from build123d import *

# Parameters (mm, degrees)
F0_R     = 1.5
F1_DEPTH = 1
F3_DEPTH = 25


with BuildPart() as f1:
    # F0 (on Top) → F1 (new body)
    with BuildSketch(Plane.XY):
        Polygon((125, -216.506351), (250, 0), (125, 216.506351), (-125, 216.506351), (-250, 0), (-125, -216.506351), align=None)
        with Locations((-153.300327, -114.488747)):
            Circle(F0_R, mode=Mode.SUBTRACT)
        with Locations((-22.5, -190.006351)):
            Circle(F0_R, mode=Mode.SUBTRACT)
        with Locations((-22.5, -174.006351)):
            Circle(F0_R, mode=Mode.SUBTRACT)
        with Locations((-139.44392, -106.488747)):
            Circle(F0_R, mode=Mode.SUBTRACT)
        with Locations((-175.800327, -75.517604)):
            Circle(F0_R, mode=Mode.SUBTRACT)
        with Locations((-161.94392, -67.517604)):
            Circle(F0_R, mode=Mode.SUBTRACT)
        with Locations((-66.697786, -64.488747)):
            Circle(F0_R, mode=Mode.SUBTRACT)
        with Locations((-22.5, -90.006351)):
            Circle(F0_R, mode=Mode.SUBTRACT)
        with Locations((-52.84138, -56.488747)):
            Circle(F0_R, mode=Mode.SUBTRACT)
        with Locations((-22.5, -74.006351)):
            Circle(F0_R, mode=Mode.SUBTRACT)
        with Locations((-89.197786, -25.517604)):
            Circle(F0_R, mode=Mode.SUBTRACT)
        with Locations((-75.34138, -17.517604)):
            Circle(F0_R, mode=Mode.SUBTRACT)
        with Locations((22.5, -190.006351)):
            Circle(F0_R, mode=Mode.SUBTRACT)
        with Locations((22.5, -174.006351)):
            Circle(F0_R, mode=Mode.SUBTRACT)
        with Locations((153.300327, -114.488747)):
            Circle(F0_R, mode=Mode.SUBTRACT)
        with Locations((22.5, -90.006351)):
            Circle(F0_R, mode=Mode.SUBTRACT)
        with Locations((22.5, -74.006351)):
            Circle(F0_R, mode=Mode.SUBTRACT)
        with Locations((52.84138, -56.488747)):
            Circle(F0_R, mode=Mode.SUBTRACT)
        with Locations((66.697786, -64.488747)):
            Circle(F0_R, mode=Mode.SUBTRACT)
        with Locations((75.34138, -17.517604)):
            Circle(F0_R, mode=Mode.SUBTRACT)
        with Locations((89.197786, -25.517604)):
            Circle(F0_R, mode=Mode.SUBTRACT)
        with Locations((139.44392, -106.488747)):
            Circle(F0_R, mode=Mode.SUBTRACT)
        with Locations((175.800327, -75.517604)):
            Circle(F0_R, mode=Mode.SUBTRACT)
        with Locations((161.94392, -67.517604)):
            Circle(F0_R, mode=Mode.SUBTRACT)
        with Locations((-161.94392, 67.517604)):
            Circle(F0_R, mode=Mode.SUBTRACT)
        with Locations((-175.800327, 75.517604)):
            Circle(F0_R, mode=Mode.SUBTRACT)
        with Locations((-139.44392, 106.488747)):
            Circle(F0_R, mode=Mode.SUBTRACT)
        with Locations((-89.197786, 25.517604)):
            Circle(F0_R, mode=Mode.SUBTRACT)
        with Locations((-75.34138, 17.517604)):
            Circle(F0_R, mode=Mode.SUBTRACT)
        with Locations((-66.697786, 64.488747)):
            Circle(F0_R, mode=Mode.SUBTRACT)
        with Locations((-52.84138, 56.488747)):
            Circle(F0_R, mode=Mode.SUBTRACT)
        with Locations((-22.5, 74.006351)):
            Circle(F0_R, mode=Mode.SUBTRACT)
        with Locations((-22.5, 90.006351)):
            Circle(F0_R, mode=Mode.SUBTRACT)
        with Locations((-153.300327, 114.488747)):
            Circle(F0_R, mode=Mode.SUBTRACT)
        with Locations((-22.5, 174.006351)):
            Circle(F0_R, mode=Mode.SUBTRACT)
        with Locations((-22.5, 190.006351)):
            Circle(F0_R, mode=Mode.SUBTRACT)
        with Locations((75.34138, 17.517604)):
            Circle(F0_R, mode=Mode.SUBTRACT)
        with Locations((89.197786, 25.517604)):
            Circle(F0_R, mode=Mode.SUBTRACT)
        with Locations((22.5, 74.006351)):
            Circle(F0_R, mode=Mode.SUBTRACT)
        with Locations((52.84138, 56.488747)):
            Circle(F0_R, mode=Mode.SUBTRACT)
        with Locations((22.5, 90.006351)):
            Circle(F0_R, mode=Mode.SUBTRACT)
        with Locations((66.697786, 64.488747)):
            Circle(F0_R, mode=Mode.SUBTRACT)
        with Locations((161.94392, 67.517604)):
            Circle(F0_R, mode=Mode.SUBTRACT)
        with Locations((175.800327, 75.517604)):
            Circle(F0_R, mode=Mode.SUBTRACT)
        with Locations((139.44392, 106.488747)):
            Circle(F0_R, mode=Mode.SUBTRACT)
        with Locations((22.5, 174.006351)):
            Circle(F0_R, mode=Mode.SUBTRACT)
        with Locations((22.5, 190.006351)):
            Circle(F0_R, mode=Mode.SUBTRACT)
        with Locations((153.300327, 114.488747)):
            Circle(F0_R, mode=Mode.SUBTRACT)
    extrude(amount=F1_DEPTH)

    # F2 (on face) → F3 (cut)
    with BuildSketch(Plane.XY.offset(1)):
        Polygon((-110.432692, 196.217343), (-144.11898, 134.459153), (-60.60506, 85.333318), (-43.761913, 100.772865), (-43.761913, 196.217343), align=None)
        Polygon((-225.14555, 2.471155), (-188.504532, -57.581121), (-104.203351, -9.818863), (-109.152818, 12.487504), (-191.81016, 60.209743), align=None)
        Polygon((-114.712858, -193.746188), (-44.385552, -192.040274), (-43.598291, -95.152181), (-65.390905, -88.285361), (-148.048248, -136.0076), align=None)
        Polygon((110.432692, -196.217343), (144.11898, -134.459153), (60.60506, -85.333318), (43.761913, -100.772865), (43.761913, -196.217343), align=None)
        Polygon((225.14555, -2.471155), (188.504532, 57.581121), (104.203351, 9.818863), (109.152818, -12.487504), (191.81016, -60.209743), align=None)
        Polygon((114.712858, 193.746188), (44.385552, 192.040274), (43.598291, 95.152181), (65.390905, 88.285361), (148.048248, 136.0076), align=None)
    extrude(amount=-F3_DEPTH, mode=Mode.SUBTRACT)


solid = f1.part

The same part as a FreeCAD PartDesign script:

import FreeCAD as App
import Part
import Sketcher
Q = App.Units.Quantity

doc = App.newDocument("Part")
body = doc.addObject("PartDesign::Body", "Body")

# Sketch on XY plane
sketch1 = body.newObject("Sketcher::SketchObject", "Sketch")
sketch1.AttachmentSupport = (doc.getObject("XY_Plane"), [""])
sketch1.MapMode = "FlatFace"
sketch1.addGeometry([
    Part.LineSegment(App.Vector(125, -216.5, 0), App.Vector(250, 0, 0)),  # 0
    Part.LineSegment(App.Vector(250, 0, 0), App.Vector(125, 216.5, 0)),  # 1
    Part.LineSegment(App.Vector(125, 216.5, 0), App.Vector(-125, 216.5, 0)),  # 2
    Part.LineSegment(App.Vector(-125, 216.5, 0), App.Vector(-250, 0, 0)),  # 3
    Part.LineSegment(App.Vector(-250, 0, 0), App.Vector(-125, -216.5, 0)),  # 4
    Part.LineSegment(App.Vector(-125, -216.5, 0), App.Vector(125, -216.5, 0)),  # 5
    Part.Circle(App.Vector(-153.3, -114.5, 0), App.Vector(0, 0, 1), 1.5),  # 6
    Part.Circle(App.Vector(-139.4, -106.5, 0), App.Vector(0, 0, 1), 1.5),  # 7
    Part.Circle(App.Vector(-22.5, -190, 0), App.Vector(0, 0, 1), 1.5),  # 8
    Part.Circle(App.Vector(-22.5, -174, 0), App.Vector(0, 0, 1), 1.5),  # 9
    Part.Circle(App.Vector(-175.8, -75.5, 0), App.Vector(0, 0, 1), 1.5),  # 10
    Part.Circle(App.Vector(-161.9, -67.5, 0), App.Vector(0, 0, 1), 1.5),  # 11
    Part.Circle(App.Vector(-89.2, -25.5, 0), App.Vector(0, 0, 1), 1.5),  # 12
    Part.Circle(App.Vector(-66.7, -64.5, 0), App.Vector(0, 0, 1), 1.5),  # 13
    Part.Circle(App.Vector(-52.8, -56.5, 0), App.Vector(0, 0, 1), 1.5),  # 14
    Part.Circle(App.Vector(-22.5, -90, 0), App.Vector(0, 0, 1), 1.5),  # 15
    Part.Circle(App.Vector(-22.5, -74, 0), App.Vector(0, 0, 1), 1.5),  # 16
    Part.Circle(App.Vector(-75.3, -17.5, 0), App.Vector(0, 0, 1), 1.5),  # 17
    Part.Circle(App.Vector(22.5, -190, 0), App.Vector(0, 0, 1), 1.5),  # 18
    Part.Circle(App.Vector(22.5, -174, 0), App.Vector(0, 0, 1), 1.5),  # 19
    Part.Circle(App.Vector(153.3, -114.5, 0), App.Vector(0, 0, 1), 1.5),  # 20
    Part.Circle(App.Vector(139.4, -106.5, 0), App.Vector(0, 0, 1), 1.5),  # 21
    Part.Circle(App.Vector(22.5, -90, 0), App.Vector(0, 0, 1), 1.5),  # 22
    Part.Circle(App.Vector(22.5, -74, 0), App.Vector(0, 0, 1), 1.5),  # 23
    Part.Circle(App.Vector(52.8, -56.5, 0), App.Vector(0, 0, 1), 1.5),  # 24
    Part.Circle(App.Vector(66.7, -64.5, 0), App.Vector(0, 0, 1), 1.5),  # 25
    Part.Circle(App.Vector(75.3, -17.5, 0), App.Vector(0, 0, 1), 1.5),  # 26
    Part.Circle(App.Vector(175.8, -75.5, 0), App.Vector(0, 0, 1), 1.5),  # 27
    Part.Circle(App.Vector(161.9, -67.5, 0), App.Vector(0, 0, 1), 1.5),  # 28
    Part.Circle(App.Vector(89.2, -25.5, 0), App.Vector(0, 0, 1), 1.5),  # 29
    Part.Circle(App.Vector(-89.2, 25.5, 0), App.Vector(0, 0, 1), 1.5),  # 30
    Part.Circle(App.Vector(-161.9, 67.5, 0), App.Vector(0, 0, 1), 1.5),  # 31
    Part.Circle(App.Vector(-175.8, 75.5, 0), App.Vector(0, 0, 1), 1.5),  # 32
    Part.Circle(App.Vector(-75.3, 17.5, 0), App.Vector(0, 0, 1), 1.5),  # 33
    Part.Circle(App.Vector(-66.7, 64.5, 0), App.Vector(0, 0, 1), 1.5),  # 34
    Part.Circle(App.Vector(-52.8, 56.5, 0), App.Vector(0, 0, 1), 1.5),  # 35
    Part.Circle(App.Vector(-22.5, 74, 0), App.Vector(0, 0, 1), 1.5),  # 36
    Part.Circle(App.Vector(-22.5, 90, 0), App.Vector(0, 0, 1), 1.5),  # 37
    Part.Circle(App.Vector(-139.4, 106.5, 0), App.Vector(0, 0, 1), 1.5),  # 38
    Part.Circle(App.Vector(-153.3, 114.5, 0), App.Vector(0, 0, 1), 1.5),  # 39
    Part.Circle(App.Vector(-22.5, 174, 0), App.Vector(0, 0, 1), 1.5),  # 40
    Part.Circle(App.Vector(-22.5, 190, 0), App.Vector(0, 0, 1), 1.5),  # 41
    Part.Circle(App.Vector(75.3, 17.5, 0), App.Vector(0, 0, 1), 1.5),  # 42
    Part.Circle(App.Vector(22.5, 74, 0), App.Vector(0, 0, 1), 1.5),  # 43
    Part.Circle(App.Vector(22.5, 90, 0), App.Vector(0, 0, 1), 1.5),  # 44
    Part.Circle(App.Vector(52.8, 56.5, 0), App.Vector(0, 0, 1), 1.5),  # 45
    Part.Circle(App.Vector(66.7, 64.5, 0), App.Vector(0, 0, 1), 1.5),  # 46
    Part.Circle(App.Vector(89.2, 25.5, 0), App.Vector(0, 0, 1), 1.5),  # 47
    Part.Circle(App.Vector(161.9, 67.5, 0), App.Vector(0, 0, 1), 1.5),  # 48
    Part.Circle(App.Vector(175.8, 75.5, 0), App.Vector(0, 0, 1), 1.5),  # 49
    Part.Circle(App.Vector(22.5, 174, 0), App.Vector(0, 0, 1), 1.5),  # 50
    Part.Circle(App.Vector(22.5, 190, 0), App.Vector(0, 0, 1), 1.5),  # 51
    Part.Circle(App.Vector(139.4, 106.5, 0), App.Vector(0, 0, 1), 1.5),  # 52
    Part.Circle(App.Vector(153.3, 114.5, 0), App.Vector(0, 0, 1), 1.5),  # 53
], False)
sketch1.addConstraint([
    Sketcher.Constraint("Coincident", 0, 2, 1, 1),
    Sketcher.Constraint("Coincident", 1, 2, 2, 1),
    Sketcher.Constraint("Coincident", 2, 2, 3, 1),
    Sketcher.Constraint("Coincident", 3, 2, 4, 1),
    Sketcher.Constraint("Coincident", 4, 2, 5, 1),
    Sketcher.Constraint("Coincident", 5, 2, 0, 1),
    Sketcher.Constraint("Horizontal", 2),
    Sketcher.Constraint("Horizontal", 5),
    Sketcher.Constraint("Equal", 6, 7),
    Sketcher.Constraint("Equal", 7, 8),
    Sketcher.Constraint("Equal", 8, 9),
    Sketcher.Constraint("Equal", 9, 10),
    Sketcher.Constraint("Equal", 10, 11),
    Sketcher.Constraint("Equal", 11, 12),
    Sketcher.Constraint("Equal", 12, 13),
    Sketcher.Constraint("Equal", 13, 14),
    Sketcher.Constraint("Equal", 14, 15),
    Sketcher.Constraint("Equal", 15, 16),
    Sketcher.Constraint("Equal", 16, 17),
    Sketcher.Constraint("Equal", 17, 18),
    Sketcher.Constraint("Equal", 18, 19),
    Sketcher.Constraint("Equal", 19, 20),
    Sketcher.Constraint("Equal", 20, 21),
    Sketcher.Constraint("Equal", 21, 22),
    Sketcher.Constraint("Equal", 22, 23),
    Sketcher.Constraint("Equal", 23, 24),
    Sketcher.Constraint("Equal", 24, 25),
    Sketcher.Constraint("Equal", 25, 26),
    Sketcher.Constraint("Equal", 26, 27),
    Sketcher.Constraint("Equal", 27, 28),
    Sketcher.Constraint("Equal", 28, 29),
    Sketcher.Constraint("Equal", 29, 30),
    Sketcher.Constraint("Equal", 30, 31),
    Sketcher.Constraint("Equal", 31, 32),
    Sketcher.Constraint("Equal", 32, 33),
    Sketcher.Constraint("Equal", 33, 34),
    Sketcher.Constraint("Equal", 34, 35),
    Sketcher.Constraint("Equal", 35, 36),
    Sketcher.Constraint("Equal", 36, 37),
    Sketcher.Constraint("Equal", 37, 38),
    Sketcher.Constraint("Equal", 38, 39),
    Sketcher.Constraint("Equal", 39, 40),
    Sketcher.Constraint("Equal", 40, 41),
    Sketcher.Constraint("Equal", 41, 42),
    Sketcher.Constraint("Equal", 42, 43),
    Sketcher.Constraint("Equal", 43, 44),
    Sketcher.Constraint("Equal", 44, 45),
    Sketcher.Constraint("Equal", 45, 46),
    Sketcher.Constraint("Equal", 46, 47),
    Sketcher.Constraint("Equal", 47, 48),
    Sketcher.Constraint("Equal", 48, 49),
    Sketcher.Constraint("Equal", 49, 50),
    Sketcher.Constraint("Equal", 50, 51),
    Sketcher.Constraint("Equal", 51, 52),
    Sketcher.Constraint("Equal", 52, 53),
    Sketcher.Constraint("Symmetric", 29, 3, 30, 3, -1, 1),
    Sketcher.Constraint("Symmetric", 28, 3, 31, 3, -1, 1),
    Sketcher.Constraint("Symmetric", 27, 3, 32, 3, -1, 1),
    Sketcher.Constraint("Symmetric", 26, 3, 33, 3, -1, 1),
    Sketcher.Constraint("Symmetric", 25, 3, 34, 3, -1, 1),
    Sketcher.Constraint("Symmetric", 24, 3, 35, 3, -1, 1),
    Sketcher.Constraint("Symmetric", 23, 3, 36, 3, -1, 1),
    Sketcher.Constraint("Symmetric", 22, 3, 37, 3, -1, 1),
    Sketcher.Constraint("Symmetric", 21, 3, 38, 3, -1, 1),
    Sketcher.Constraint("Symmetric", 20, 3, 39, 3, -1, 1),
    Sketcher.Constraint("Symmetric", 19, 3, 40, 3, -1, 1),
    Sketcher.Constraint("Symmetric", 18, 3, 41, 3, -1, 1),
    Sketcher.Constraint("Symmetric", 17, 3, 42, 3, -1, 1),
    Sketcher.Constraint("Symmetric", 16, 3, 43, 3, -1, 1),
    Sketcher.Constraint("Symmetric", 15, 3, 44, 3, -1, 1),
    Sketcher.Constraint("Symmetric", 14, 3, 45, 3, -1, 1),
    Sketcher.Constraint("Symmetric", 13, 3, 46, 3, -1, 1),
    Sketcher.Constraint("Symmetric", 12, 3, 47, 3, -1, 1),
    Sketcher.Constraint("Symmetric", 11, 3, 48, 3, -1, 1),
    Sketcher.Constraint("Symmetric", 10, 3, 49, 3, -1, 1),
    Sketcher.Constraint("Symmetric", 9, 3, 50, 3, -1, 1),
    Sketcher.Constraint("Symmetric", 8, 3, 51, 3, -1, 1),
    Sketcher.Constraint("Symmetric", 7, 3, 52, 3, -1, 1),
    Sketcher.Constraint("Symmetric", 6, 3, 53, 3, -1, 1),
    Sketcher.Constraint("Symmetric", 0, 2, 3, 2, -1, 1),
    Sketcher.Constraint("Symmetric", 1, 2, 4, 2, -1, 1),
    Sketcher.Constraint("Symmetric", 8, 3, 18, 3, -2),
    Sketcher.Constraint("Symmetric", 9, 3, 19, 3, -2),
    Sketcher.Constraint("Symmetric", 6, 3, 20, 3, -2),
    Sketcher.Constraint("Symmetric", 7, 3, 21, 3, -2),
    Sketcher.Constraint("Symmetric", 15, 3, 22, 3, -2),
    Sketcher.Constraint("Symmetric", 16, 3, 23, 3, -2),
    Sketcher.Constraint("Symmetric", 14, 3, 24, 3, -2),
    Sketcher.Constraint("Symmetric", 13, 3, 25, 3, -2),
    Sketcher.Constraint("Symmetric", 17, 3, 26, 3, -2),
    Sketcher.Constraint("Symmetric", 10, 3, 27, 3, -2),
    Sketcher.Constraint("Symmetric", 11, 3, 28, 3, -2),
    Sketcher.Constraint("Symmetric", 12, 3, 29, 3, -2),
    Sketcher.Constraint("PointOnObject", 0, 2, -1),
    Sketcher.Constraint("Parallel", 0, 3),
    Sketcher.Constraint("Vertical", 8, 3, 9, 3),
    Sketcher.Constraint("Vertical", 9, 3, 15, 3),
    Sketcher.Constraint("Vertical", 15, 3, 16, 3),
    Sketcher.Constraint("Vertical", 2, 2, 4, 2),
    Sketcher.Constraint("Diameter", 6, 3.0),
    Sketcher.Constraint("DistanceX", 2, 2, 2, 1, 250.0),
    Sketcher.Constraint("Angle", 0, Q("60 deg")),
    Sketcher.Constraint("Distance", 0, 250.0),
    Sketcher.Constraint("DistanceY", 6, 3, 7, 3, 8.0),
    Sketcher.Constraint("DistanceY", 8, 3, 9, 3, 16.0),
    Sketcher.Constraint("DistanceY", 10, 3, 11, 3, 8.0),
    Sketcher.Constraint("DistanceY", 11, 3, 12, 3, 42.0),
    Sketcher.Constraint("DistanceY", 7, 3, 13, 3, 42.0),
    Sketcher.Constraint("DistanceY", 13, 3, 14, 3, 8.0),
    Sketcher.Constraint("DistanceY", 9, 3, 15, 3, 84.0),
    Sketcher.Constraint("DistanceY", 15, 3, 16, 3, 16.0),
    Sketcher.Constraint("DistanceY", 12, 3, 17, 3, 8.0),
    Sketcher.Constraint("DistanceX", 8, 3, 18, 3, 45.0),
    Sketcher.Constraint("DistanceX", 10, 3, 6, 3, 22.5),
    Sketcher.Constraint("DistanceX", 11, 3, 7, 3, 22.5),
    Sketcher.Constraint("DistanceX", 12, 3, 13, 3, 22.5),
    Sketcher.Constraint("DistanceX", 17, 3, 14, 3, 22.5),
    Sketcher.Constraint("DistanceY", 51, 3, 1, 2, 26.5),
    Sketcher.Constraint("DistanceX", 7, 3, -1, 1, 139.44392),
    Sketcher.Constraint("DistanceX", 14, 3, -1, 1, 52.84138),
    Sketcher.Constraint("DistanceX", 10, 3, 12, 3, 86.602541),
    Sketcher.Constraint("DistanceY", 14, 3, 30, 3, 82.006351),
    Sketcher.Constraint("DistanceY", 11, 3, 30, 3, 93.035208),
    Sketcher.Constraint("DistanceX", 6, 3, -1, 1, 153.300327),
])
pad1 = body.newObject("PartDesign::Pad", "Pad")
pad1.Profile = sketch1
pad1.Length = 1

# Sketch on XY plane
sketch2 = body.newObject("Sketcher::SketchObject", "Sketch001")
sketch2.AttachmentSupport = (doc.getObject("XY_Plane"), [""])
sketch2.MapMode = "FlatFace"
sketch2.AttachmentOffset = App.Placement(App.Vector(0, 0, 1), App.Rotation())
sketch2.addGeometry([
    Part.LineSegment(App.Vector(-110, 196, 0), App.Vector(-144, 134, 0)),  # 0
    Part.LineSegment(App.Vector(-144, 134, 0), App.Vector(-61, 85, 0)),  # 1
    Part.LineSegment(App.Vector(-61, 85, 0), App.Vector(-44, 101, 0)),  # 2
    Part.LineSegment(App.Vector(-44, 101, 0), App.Vector(-44, 196, 0)),  # 3
    Part.LineSegment(App.Vector(-44, 196, 0), App.Vector(-110, 196, 0)),  # 4
    Part.LineSegment(App.Vector(-225, 2, 0), App.Vector(-189, -58, 0)),  # 5
    Part.LineSegment(App.Vector(-189, -58, 0), App.Vector(-104, -10, 0)),  # 6
    Part.LineSegment(App.Vector(-104, -10, 0), App.Vector(-109, 12, 0)),  # 7
    Part.LineSegment(App.Vector(-109, 12, 0), App.Vector(-192, 60, 0)),  # 8
    Part.LineSegment(App.Vector(-192, 60, 0), App.Vector(-225, 2, 0)),  # 9
    Part.LineSegment(App.Vector(-115, -194, 0), App.Vector(-44, -192, 0)),  # 10
    Part.LineSegment(App.Vector(-44, -192, 0), App.Vector(-44, -95, 0)),  # 11
    Part.LineSegment(App.Vector(-44, -95, 0), App.Vector(-65, -88, 0)),  # 12
    Part.LineSegment(App.Vector(-65, -88, 0), App.Vector(-148, -136, 0)),  # 13
    Part.LineSegment(App.Vector(-148, -136, 0), App.Vector(-115, -194, 0)),  # 14
    Part.LineSegment(App.Vector(110, -196, 0), App.Vector(144, -134, 0)),  # 15
    Part.LineSegment(App.Vector(144, -134, 0), App.Vector(61, -85, 0)),  # 16
    Part.LineSegment(App.Vector(61, -85, 0), App.Vector(44, -101, 0)),  # 17
    Part.LineSegment(App.Vector(44, -101, 0), App.Vector(44, -196, 0)),  # 18
    Part.LineSegment(App.Vector(44, -196, 0), App.Vector(110, -196, 0)),  # 19
    Part.LineSegment(App.Vector(225, -2, 0), App.Vector(189, 58, 0)),  # 20
    Part.LineSegment(App.Vector(189, 58, 0), App.Vector(104, 10, 0)),  # 21
    Part.LineSegment(App.Vector(104, 10, 0), App.Vector(109, -12, 0)),  # 22
    Part.LineSegment(App.Vector(109, -12, 0), App.Vector(192, -60, 0)),  # 23
    Part.LineSegment(App.Vector(192, -60, 0), App.Vector(225, -2, 0)),  # 24
    Part.LineSegment(App.Vector(115, 194, 0), App.Vector(44, 192, 0)),  # 25
    Part.LineSegment(App.Vector(44, 192, 0), App.Vector(44, 95, 0)),  # 26
    Part.LineSegment(App.Vector(44, 95, 0), App.Vector(65, 88, 0)),  # 27
    Part.LineSegment(App.Vector(65, 88, 0), App.Vector(148, 136, 0)),  # 28
    Part.LineSegment(App.Vector(148, 136, 0), App.Vector(115, 194, 0)),  # 29
], False)
sketch2.addConstraint([
    Sketcher.Constraint("Coincident", 0, 2, 1, 1),
    Sketcher.Constraint("Coincident", 1, 2, 2, 1),
    Sketcher.Constraint("Coincident", 2, 2, 3, 1),
    Sketcher.Constraint("Coincident", 3, 2, 4, 1),
    Sketcher.Constraint("Coincident", 4, 2, 0, 1),
    Sketcher.Constraint("Coincident", 5, 2, 6, 1),
    Sketcher.Constraint("Coincident", 6, 2, 7, 1),
    Sketcher.Constraint("Coincident", 7, 2, 8, 1),
    Sketcher.Constraint("Coincident", 8, 2, 9, 1),
    Sketcher.Constraint("Coincident", 9, 2, 5, 1),
    Sketcher.Constraint("Coincident", 10, 2, 11, 1),
    Sketcher.Constraint("Coincident", 11, 2, 12, 1),
    Sketcher.Constraint("Coincident", 12, 2, 13, 1),
    Sketcher.Constraint("Coincident", 13, 2, 14, 1),
    Sketcher.Constraint("Coincident", 14, 2, 10, 1),
    Sketcher.Constraint("Coincident", 15, 2, 16, 1),
    Sketcher.Constraint("Coincident", 16, 2, 17, 1),
    Sketcher.Constraint("Coincident", 17, 2, 18, 1),
    Sketcher.Constraint("Coincident", 18, 2, 19, 1),
    Sketcher.Constraint("Coincident", 19, 2, 15, 1),
    Sketcher.Constraint("Coincident", 20, 2, 21, 1),
    Sketcher.Constraint("Coincident", 21, 2, 22, 1),
    Sketcher.Constraint("Coincident", 22, 2, 23, 1),
    Sketcher.Constraint("Coincident", 23, 2, 24, 1),
    Sketcher.Constraint("Coincident", 24, 2, 20, 1),
    Sketcher.Constraint("Coincident", 25, 2, 26, 1),
    Sketcher.Constraint("Coincident", 26, 2, 27, 1),
    Sketcher.Constraint("Coincident", 27, 2, 28, 1),
    Sketcher.Constraint("Coincident", 28, 2, 29, 1),
    Sketcher.Constraint("Coincident", 29, 2, 25, 1),
    Sketcher.Constraint("Vertical", 3),
    Sketcher.Constraint("Horizontal", 4),
    Sketcher.Constraint("Vertical", 18),
    Sketcher.Constraint("Horizontal", 19),
    Sketcher.Constraint("Symmetric", 0, 2, 15, 2, -1, 1),
    Sketcher.Constraint("Symmetric", 1, 2, 16, 2, -1, 1),
    Sketcher.Constraint("Symmetric", 2, 2, 17, 2, -1, 1),
    Sketcher.Constraint("Symmetric", 4, 2, 19, 2, -1, 1),
    Sketcher.Constraint("Symmetric", 5, 2, 20, 2, -1, 1),
    Sketcher.Constraint("Symmetric", 6, 2, 21, 2, -1, 1),
    Sketcher.Constraint("Symmetric", 7, 2, 22, 2, -1, 1),
    Sketcher.Constraint("Symmetric", 8, 2, 23, 2, -1, 1),
    Sketcher.Constraint("Symmetric", 9, 2, 24, 2, -1, 1),
    Sketcher.Constraint("Symmetric", 10, 2, 25, 2, -1, 1),
    Sketcher.Constraint("Symmetric", 11, 2, 26, 2, -1, 1),
    Sketcher.Constraint("Symmetric", 12, 2, 27, 2, -1, 1),
    Sketcher.Constraint("Symmetric", 13, 2, 28, 2, -1, 1),
    Sketcher.Constraint("Symmetric", 14, 2, 29, 2, -1, 1),
    Sketcher.Constraint("Perpendicular", 8, 9),
    Sketcher.Constraint("Perpendicular", 13, 14),
    Sketcher.Constraint("Equal", 0, 5),
    Sketcher.Constraint("Equal", 1, 6),
    Sketcher.Constraint("Equal", 2, 7),
    Sketcher.Constraint("Equal", 5, 10),
    Sketcher.Constraint("Equal", 6, 11),
    Sketcher.Constraint("Equal", 7, 12),
    Sketcher.Constraint("Equal", 8, 13),
    Sketcher.Constraint("Equal", 9, 14),
    Sketcher.Constraint("Angle", 8, Q("150 deg")),
    Sketcher.Constraint("Angle", 13, Q("-150 deg")),
    Sketcher.Constraint("DistanceX", 9, 2, 10, 2, 180.759998),
    Sketcher.Constraint("DistanceX", 4, 2, 4, 1, 66.670779),
    Sketcher.Constraint("DistanceY", 3, 1, 3, 2, 95.444478),
    Sketcher.Constraint("DistanceY", 13, 2, -1, 1, 136.0076),
    Sketcher.Constraint("DistanceX", 8, 2, 1, 2, 131.2051),
    Sketcher.Constraint("DistanceX", 9, 2, 6, 2, 120.942199),
    Sketcher.Constraint("DistanceY", 11, 2, 1, 2, 180.485499),
    Sketcher.Constraint("DistanceY", 12, 2, 6, 2, 78.466498),
    Sketcher.Constraint("Distance", 6, 96.891292),
    Sketcher.Constraint("Distance", 7, 22.848878),
    Sketcher.Constraint("Distance", 9, 66.670779),
    Sketcher.Constraint("Distance", 13, 95.444478),
    Sketcher.Constraint("DistanceX", 0, 2, -1, 1, 144.11898),
    Sketcher.Constraint("DistanceX", 1, 2, -1, 1, 60.60506),
    Sketcher.Constraint("DistanceY", -1, 1, 1, 2, 85.333318),
    Sketcher.Constraint("DistanceY", 5, 2, -1, 1, 57.581121),
])
pocket1 = body.newObject("PartDesign::Pocket", "Pocket")
pocket1.Profile = sketch2
pocket1.Length = 25

doc.recompute()
